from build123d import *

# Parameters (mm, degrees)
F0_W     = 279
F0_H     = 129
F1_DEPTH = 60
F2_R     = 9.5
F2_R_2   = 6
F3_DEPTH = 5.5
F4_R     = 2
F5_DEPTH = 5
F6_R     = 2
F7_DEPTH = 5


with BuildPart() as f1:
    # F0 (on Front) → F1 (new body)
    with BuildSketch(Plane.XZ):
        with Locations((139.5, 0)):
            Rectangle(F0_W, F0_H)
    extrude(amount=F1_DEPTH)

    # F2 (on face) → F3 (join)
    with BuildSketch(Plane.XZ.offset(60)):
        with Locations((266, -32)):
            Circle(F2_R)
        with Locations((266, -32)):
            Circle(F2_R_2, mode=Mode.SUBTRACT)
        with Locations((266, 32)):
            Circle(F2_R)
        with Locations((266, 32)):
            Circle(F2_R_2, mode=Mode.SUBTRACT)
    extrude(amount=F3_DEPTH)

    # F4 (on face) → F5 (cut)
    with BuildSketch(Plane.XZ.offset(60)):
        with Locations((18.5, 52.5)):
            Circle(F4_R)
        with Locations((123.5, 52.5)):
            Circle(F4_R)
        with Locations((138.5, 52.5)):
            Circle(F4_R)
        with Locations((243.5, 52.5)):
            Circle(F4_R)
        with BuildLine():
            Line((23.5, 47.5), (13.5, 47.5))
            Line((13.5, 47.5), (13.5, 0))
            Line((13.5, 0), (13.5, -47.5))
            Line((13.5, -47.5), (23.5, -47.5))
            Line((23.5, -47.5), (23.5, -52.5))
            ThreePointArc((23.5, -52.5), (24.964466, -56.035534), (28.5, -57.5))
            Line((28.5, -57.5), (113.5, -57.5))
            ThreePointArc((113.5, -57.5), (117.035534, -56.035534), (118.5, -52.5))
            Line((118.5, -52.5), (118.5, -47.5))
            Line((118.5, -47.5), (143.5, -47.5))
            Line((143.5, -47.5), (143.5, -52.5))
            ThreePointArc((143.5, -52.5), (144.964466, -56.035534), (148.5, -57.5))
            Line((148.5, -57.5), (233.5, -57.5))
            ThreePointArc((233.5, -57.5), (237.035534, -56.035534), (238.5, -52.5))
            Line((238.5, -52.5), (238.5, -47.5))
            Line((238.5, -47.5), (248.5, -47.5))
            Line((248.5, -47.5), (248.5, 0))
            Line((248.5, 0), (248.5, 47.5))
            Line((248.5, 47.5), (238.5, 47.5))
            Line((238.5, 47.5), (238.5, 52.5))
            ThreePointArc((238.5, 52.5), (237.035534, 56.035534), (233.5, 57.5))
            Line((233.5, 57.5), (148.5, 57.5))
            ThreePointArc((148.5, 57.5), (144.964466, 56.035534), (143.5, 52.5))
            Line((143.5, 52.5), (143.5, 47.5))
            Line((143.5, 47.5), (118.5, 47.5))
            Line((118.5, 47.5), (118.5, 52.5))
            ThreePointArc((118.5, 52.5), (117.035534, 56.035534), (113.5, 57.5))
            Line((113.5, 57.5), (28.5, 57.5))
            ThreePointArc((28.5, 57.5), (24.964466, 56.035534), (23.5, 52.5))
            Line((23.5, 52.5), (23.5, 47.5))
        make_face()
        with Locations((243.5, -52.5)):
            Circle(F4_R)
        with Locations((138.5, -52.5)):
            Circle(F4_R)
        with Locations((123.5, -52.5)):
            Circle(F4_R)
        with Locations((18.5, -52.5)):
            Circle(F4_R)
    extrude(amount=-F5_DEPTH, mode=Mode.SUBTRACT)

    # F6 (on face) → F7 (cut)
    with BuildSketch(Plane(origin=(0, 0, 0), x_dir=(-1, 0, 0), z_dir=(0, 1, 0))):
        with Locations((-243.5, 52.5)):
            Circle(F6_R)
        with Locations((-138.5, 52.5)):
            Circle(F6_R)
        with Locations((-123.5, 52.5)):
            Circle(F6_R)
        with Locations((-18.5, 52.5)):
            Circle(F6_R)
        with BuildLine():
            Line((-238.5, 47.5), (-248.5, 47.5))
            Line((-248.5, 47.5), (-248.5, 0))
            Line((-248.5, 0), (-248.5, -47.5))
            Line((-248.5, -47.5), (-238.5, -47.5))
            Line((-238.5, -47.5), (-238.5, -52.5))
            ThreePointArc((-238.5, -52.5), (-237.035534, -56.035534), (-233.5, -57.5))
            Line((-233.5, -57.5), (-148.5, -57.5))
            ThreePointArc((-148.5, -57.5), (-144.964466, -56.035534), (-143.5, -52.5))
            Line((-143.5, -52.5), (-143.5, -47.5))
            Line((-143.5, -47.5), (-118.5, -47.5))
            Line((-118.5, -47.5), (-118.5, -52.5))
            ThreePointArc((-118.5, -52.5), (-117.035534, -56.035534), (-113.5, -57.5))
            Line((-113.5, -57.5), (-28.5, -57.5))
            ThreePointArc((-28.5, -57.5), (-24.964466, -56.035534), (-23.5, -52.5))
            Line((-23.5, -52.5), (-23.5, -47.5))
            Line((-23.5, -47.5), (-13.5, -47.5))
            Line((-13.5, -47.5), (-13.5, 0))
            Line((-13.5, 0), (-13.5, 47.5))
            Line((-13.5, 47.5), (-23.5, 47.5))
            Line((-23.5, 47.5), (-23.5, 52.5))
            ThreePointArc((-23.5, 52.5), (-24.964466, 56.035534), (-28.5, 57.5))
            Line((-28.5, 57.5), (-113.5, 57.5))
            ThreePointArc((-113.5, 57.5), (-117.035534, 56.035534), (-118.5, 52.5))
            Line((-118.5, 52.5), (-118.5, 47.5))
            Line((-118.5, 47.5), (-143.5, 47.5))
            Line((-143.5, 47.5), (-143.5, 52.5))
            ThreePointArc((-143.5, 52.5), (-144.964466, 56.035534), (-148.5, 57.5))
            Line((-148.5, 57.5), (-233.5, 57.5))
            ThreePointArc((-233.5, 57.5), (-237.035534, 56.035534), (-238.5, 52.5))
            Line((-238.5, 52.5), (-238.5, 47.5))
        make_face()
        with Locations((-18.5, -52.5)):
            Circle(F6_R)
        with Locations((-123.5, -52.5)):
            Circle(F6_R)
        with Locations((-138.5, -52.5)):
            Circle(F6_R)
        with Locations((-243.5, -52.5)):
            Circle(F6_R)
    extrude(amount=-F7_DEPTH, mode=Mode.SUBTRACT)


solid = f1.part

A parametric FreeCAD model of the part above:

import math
import FreeCAD as App
import Part
import Sketcher
Q = App.Units.Quantity


def add_polygon(sketch, points):
    """Adds a closed chain of lines whose ends are joined by coincident constraints."""
    first, n = sketch.GeometryCount, len(points)
    for a, b in zip(points, points[1:] + points[:1]):
        sketch.addGeometry(Part.LineSegment(App.Vector(*a, 0), App.Vector(*b, 0)), False)
    for i in range(n):
        sketch.addConstraint(Sketcher.Constraint("Coincident", first + i, 2, first + (i + 1) % n, 1))

doc = App.newDocument("Part")
params = doc.addObject("Spreadsheet::Sheet", "Params")
for row, (alias, value) in enumerate([
    ("sketch1_width", "279 mm"),
    ("sketch1_height", "129 mm"),
    ("pad1_length", "60 mm"),
    ("sketch2_diameter", "19 mm"),
    ("sketch2_diameter2", "12 mm"),
    ("pad2_length", "5.5 mm"),
    ("sketch3_diameter", "4 mm"),
    ("sketch3_radius", "5 mm"),
    ("sketch3_width", "10 mm"),
    ("sketch3_width2", "85 mm"),
    ("sketch3_width3", "25 mm"),
    ("pocket1_length", "5 mm"),
    ("sketch4_diameter", "4 mm"),
    ("sketch4_radius", "5 mm"),
    ("sketch4_width", "10 mm"),
    ("sketch4_width2", "85 mm"),
    ("sketch4_width3", "25 mm"),
    ("pocket2_length", "5 mm"),
], start=1):
    params.set(f"A{row}", alias)
    params.set(f"B{row}", "=" + value)
    params.setAlias(f"B{row}", alias)

body = doc.addObject("PartDesign::Body", "Body")

sketch1 = body.newObject("Sketcher::SketchObject", "Sketch")
sketch1.AttachmentSupport = (doc.getObject("XZ_Plane"), [""])
sketch1.MapMode = "FlatFace"
add_polygon(sketch1, [(0, 64), (0, -64), (279, -64), (279, 64)])
sketch1.addConstraint([
    Sketcher.Constraint("Vertical", 0),
    Sketcher.Constraint("Horizontal", 1),
    Sketcher.Constraint("Vertical", 2),
    Sketcher.Constraint("Horizontal", 3),
    Sketcher.Constraint("Symmetric", 0, 2, 3, 2, -1, 1),
    Sketcher.Constraint("DistanceX", 1, 1, 1, 2, Q("279 mm")),
    Sketcher.Constraint("DistanceY", 0, 2, 0, 1, Q("129 mm")),
])
sketch1.setExpression("Constraints[9]", "Params.sketch1_width")
sketch1.setExpression("Constraints[10]", "Params.sketch1_height")
pad1 = body.newObject("PartDesign::Pad", "Pad")
pad1.Profile = sketch1
pad1.setExpression("Length", "Params.pad1_length")

sketch2 = body.newObject("Sketcher::SketchObject", "Sketch001")
sketch2.AttachmentSupport = (doc.getObject("XZ_Plane"), [""])
sketch2.MapMode = "FlatFace"
sketch2.AttachmentOffset = App.Placement(App.Vector(0, 0, 60), App.Rotation())
sketch2.addGeometry([
    Part.Circle(App.Vector(266, -32, 0), App.Vector(0, 0, 1), 10),
    Part.Circle(App.Vector(266, -32, 0), App.Vector(0, 0, 1), 6),
    Part.Circle(App.Vector(266, 32, 0), App.Vector(0, 0, 1), 10),
    Part.Circle(App.Vector(266, 32, 0), App.Vector(0, 0, 1), 6),
], False)
sketch2.addConstraint([
    Sketcher.Constraint("Coincident", 1, 3, 0, 3),
    Sketcher.Constraint("Coincident", 3, 3, 2, 3),
    Sketcher.Constraint("Equal", 0, 2),
    Sketcher.Constraint("Equal", 1, 3),
    Sketcher.Constraint("Symmetric", 0, 3, 2, 3, -1),
    Sketcher.Constraint("Diameter", 0, Q("19 mm")),
    Sketcher.Constraint("Diameter", 1, Q("12 mm")),
    Sketcher.Constraint("DistanceX", -1, 1, 0, 3, Q("266 mm")),
    Sketcher.Constraint("DistanceY", 0, 3, -1, 1, Q("32 mm")),
])
sketch2.setExpression("Constraints[5]", "Params.sketch2_diameter")
sketch2.setExpression("Constraints[6]", "Params.sketch2_diameter2")
pad2 = body.newObject("PartDesign::Pad", "Pad001")
pad2.Profile = sketch2
pad2.setExpression("Length", "Params.pad2_length")

sketch3 = body.newObject("Sketcher::SketchObject", "Sketch002")
sketch3.AttachmentSupport = (doc.getObject("XZ_Plane"), [""])
sketch3.MapMode = "FlatFace"
sketch3.AttachmentOffset = App.Placement(App.Vector(0, 0, 60), App.Rotation())
sketch3.addGeometry([
    Part.Circle(App.Vector(18.5, 52.5, 0), App.Vector(0, 0, 1), 2),
    Part.Circle(App.Vector(123.5, 52.5, 0), App.Vector(0, 0, 1), 2),
    Part.Circle(App.Vector(138.5, 52.5, 0), App.Vector(0, 0, 1), 2),
    Part.Circle(App.Vector(243.5, 52.5, 0), App.Vector(0, 0, 1), 2),
    Part.LineSegment(App.Vector(23.5, 47.5, 0), App.Vector(13.5, 47.5, 0)),
    Part.LineSegment(App.Vector(13.5, 47.5, 0), App.Vector(13.5, -47.5, 0)),
    Part.LineSegment(App.Vector(13.5, -47.5, 0), App.Vector(23.5, -47.5, 0)),
    Part.LineSegment(App.Vector(23.5, -47.5, 0), App.Vector(23.5, -52.5, 0)),
    Part.ArcOfCircle(Part.Circle(App.Vector(28.5, -52.5, 0), App.Vector(0, 0, 1), 5), math.radians(180), math.radians(270)),
    Part.LineSegment(App.Vector(28.5, -57.5, 0), App.Vector(113.5, -57.5, 0)),
    Part.ArcOfCircle(Part.Circle(App.Vector(113.5, -52.5, 0), App.Vector(0, 0, 1), 5), math.radians(-90), math.radians(0)),
    Part.LineSegment(App.Vector(118.5, -52.5, 0), App.Vector(118.5, -47.5, 0)),
    Part.LineSegment(App.Vector(118.5, -47.5, 0), App.Vector(143.5, -47.5, 0)),
    Part.LineSegment(App.Vector(143.5, -47.5, 0), App.Vector(143.5, -52.5, 0)),
    Part.ArcOfCircle(Part.Circle(App.Vector(148.5, -52.5, 0), App.Vector(0, 0, 1), 5), math.radians(180), math.radians(270)),
    Part.LineSegment(App.Vector(148.5, -57.5, 0), App.Vector(233.5, -57.5, 0)),
    Part.ArcOfCircle(Part.Circle(App.Vector(233.5, -52.5, 0), App.Vector(0, 0, 1), 5), math.radians(-90), math.radians(0)),
    Part.LineSegment(App.Vector(238.5, -52.5, 0), App.Vector(238.5, -47.5, 0)),
    Part.LineSegment(App.Vector(238.5, -47.5, 0), App.Vector(248.5, -47.5, 0)),
    Part.LineSegment(App.Vector(248.5, -47.5, 0), App.Vector(248.5, 47.5, 0)),
    Part.LineSegment(App.Vector(248.5, 47.5, 0), App.Vector(238.5, 47.5, 0)),
    Part.LineSegment(App.Vector(238.5, 47.5, 0), App.Vector(238.5, 52.5, 0)),
    Part.ArcOfCircle(Part.Circle(App.Vector(233.5, 52.5, 0), App.Vector(0, 0, 1), 5), math.radians(0), math.radians(90)),
    Part.LineSegment(App.Vector(233.5, 57.5, 0), App.Vector(148.5, 57.5, 0)),
    Part.ArcOfCircle(Part.Circle(App.Vector(148.5, 52.5, 0), App.Vector(0, 0, 1), 5), math.radians(90), math.radians(180)),
    Part.LineSegment(App.Vector(143.5, 52.5, 0), App.Vector(143.5, 47.5, 0)),
    Part.LineSegment(App.Vector(143.5, 47.5, 0), App.Vector(118.5, 47.5, 0)),
    Part.LineSegment(App.Vector(118.5, 47.5, 0), App.Vector(118.5, 52.5, 0)),
    Part.ArcOfCircle(Part.Circle(App.Vector(113.5, 52.5, 0), App.Vector(0, 0, 1), 5), math.radians(0), math.radians(90)),
    Part.LineSegment(App.Vector(113.5, 57.5, 0), App.Vector(28.5, 57.5, 0)),
    Part.ArcOfCircle(Part.Circle(App.Vector(28.5, 52.5, 0), App.Vector(0, 0, 1), 5), math.radians(90), math.radians(180)),
    Part.LineSegment(App.Vector(23.5, 52.5, 0), App.Vector(23.5, 47.5, 0)),
    Part.Circle(App.Vector(243.5, -52.5, 0), App.Vector(0, 0, 1), 2),
    Part.Circle(App.Vector(138.5, -52.5, 0), App.Vector(0, 0, 1), 2),
    Part.Circle(App.Vector(123.5, -52.5, 0), App.Vector(0, 0, 1), 2),
    Part.Circle(App.Vector(18.5, -52.5, 0), App.Vector(0, 0, 1), 2),
], False)
sketch3.addConstraint([
    Sketcher.Constraint("Coincident", 4, 2, 5, 1),
    Sketcher.Constraint("Coincident", 5, 2, 6, 1),
    Sketcher.Constraint("Coincident", 6, 2, 7, 1),
    Sketcher.Constraint("Tangent", 7, 2, 8, 1),
    Sketcher.Constraint("Tangent", 8, 2, 9, 1),
    Sketcher.Constraint("Tangent", 9, 2, 10, 1),
    Sketcher.Constraint("Tangent", 10, 2, 11, 1),
    Sketcher.Constraint("Coincident", 11, 2, 12, 1),
    Sketcher.Constraint("Coincident", 12, 2, 13, 1),
    Sketcher.Constraint("Tangent", 13, 2, 14, 1),
    Sketcher.Constraint("Tangent", 14, 2, 15, 1),
    Sketcher.Constraint("Tangent", 15, 2, 16, 1),
    Sketcher.Constraint("Tangent", 16, 2, 17, 1),
    Sketcher.Constraint("Coincident", 17, 2, 18, 1),
    Sketcher.Constraint("Coincident", 18, 2, 19, 1),
    Sketcher.Constraint("Coincident", 19, 2, 20, 1),
    Sketcher.Constraint("Coincident", 20, 2, 21, 1),
    Sketcher.Constraint("Tangent", 21, 2, 22, 1),
    Sketcher.Constraint("Tangent", 22, 2, 23, 1),
    Sketcher.Constraint("Tangent", 23, 2, 24, 1),
    Sketcher.Constraint("Tangent", 24, 2, 25, 1),
    Sketcher.Constraint("Coincident", 25, 2, 26, 1),
    Sketcher.Constraint("Coincident", 26, 2, 27, 1),
    Sketcher.Constraint("Tangent", 27, 2, 28, 1),
    Sketcher.Constraint("Tangent", 28, 2, 29, 1),
    Sketcher.Constraint("Tangent", 29, 2, 30, 1),
    Sketcher.Constraint("Tangent", 30, 2, 31, 1),
    Sketcher.Constraint("Coincident", 31, 2, 4, 1),
    Sketcher.Constraint("Horizontal", 4),
    Sketcher.Constraint("Vertical", 5),
    Sketcher.Constraint("Horizontal", 6),
    Sketcher.Constraint("Vertical", 7),
    Sketcher.Constraint("Horizontal", 9),
    Sketcher.Constraint("Vertical", 11),
    Sketcher.Constraint("Horizontal", 12),
    Sketcher.Constraint("Vertical", 13),
    Sketcher.Constraint("Horizontal", 15),
    Sketcher.Constraint("Vertical", 17),
    Sketcher.Constraint("Horizontal", 18),
    Sketcher.Constraint("Vertical", 19),
    Sketcher.Constraint("Horizontal", 20),
    Sketcher.Constraint("Vertical", 21),
    Sketcher.Constraint("Horizontal", 23),
    Sketcher.Constraint("Vertical", 25),
    Sketcher.Constraint("Horizontal", 26),
    Sketcher.Constraint("Vertical", 27),
    Sketcher.Constraint("Horizontal", 29),
    Sketcher.Constraint("Vertical", 31),
    Sketcher.Constraint("Equal", 0, 1),
    Sketcher.Constraint("Equal", 1, 2),
    Sketcher.Constraint("Equal", 2, 3),
    Sketcher.Constraint("Equal", 8, 10),
    Sketcher.Constraint("Equal", 10, 14),
    Sketcher.Constraint("Equal", 14, 16),
    Sketcher.Constraint("Equal", 16, 22),
    Sketcher.Constraint("Equal", 22, 24),
    Sketcher.Constraint("Equal", 24, 28),
    Sketcher.Constraint("Equal", 28, 30),
    Sketcher.Constraint("Equal", 3, 32),
    Sketcher.Constraint("Equal", 32, 33),
    Sketcher.Constraint("Equal", 33, 34),
    Sketcher.Constraint("Equal", 34, 35),
    Sketcher.Constraint("Symmetric", 16, 3, 22, 3, -1),
    Sketcher.Constraint("Symmetric", 10, 3, 28, 3, -1),
    Sketcher.Constraint("Symmetric", 3, 3, 32, 3, -1),
    Sketcher.Constraint("Symmetric", 2, 3, 33, 3, -1),
    Sketcher.Constraint("Symmetric", 1, 3, 34, 3, -1),
    Sketcher.Constraint("Symmetric", 0, 3, 35, 3, -1),
    Sketcher.Constraint("Symmetric", 12, 2, 25, 2, -1),
    Sketcher.Constraint("Symmetric", 6, 2, 31, 2, -1),
    Sketcher.Constraint("Horizontal", 0, 3, 1, 3),
    Sketcher.Constraint("Horizontal", 1, 3, 2, 3),
    Sketcher.Constraint("Horizontal", 2, 3, 3, 3),
    Sketcher.Constraint("Horizontal", 10, 3, 14, 3),
    Sketcher.Constraint("Horizontal", 3, 3, 22, 3),
    Sketcher.Constraint("Horizontal", 6, 2, 11, 2),
    Sketcher.Constraint("Horizontal", 12, 2, 17, 2),
    Sketcher.Constraint("Horizontal", 4, 2, 19, 2),
    Sketcher.Constraint("Equal", 9, 15),
    Sketcher.Constraint("Equal", 6, 18),
    Sketcher.Constraint("Diameter", 0, Q("4 mm")),
    Sketcher.Constraint("Radius", 8, Q("5 mm")),
    Sketcher.Constraint("DistanceX", 4, 2, 4, 1, Q("10 mm")),
    Sketcher.Constraint("DistanceX", 9, 1, 9, 2, Q("85 mm")),
    Sketcher.Constraint("DistanceX", 12, 1, 12, 2, Q("25 mm")),
    Sketcher.Constraint("DistanceY", 5, 2, 5, 1, Q("95 mm")),
    Sketcher.Constraint("DistanceY", 7, 2, 7, 1, Q("5 mm")),
    Sketcher.Constraint("DistanceX", 0, 3, 1, 3, Q("105 mm")),
    Sketcher.Constraint("DistanceX", 1, 3, 2, 3, Q("15 mm")),
    Sketcher.Constraint("DistanceX", 2, 3, 3, 3, Q("105 mm")),
    Sketcher.Constraint("DistanceX", 0, 3, 8, 3, Q("10 mm")),
    Sketcher.Constraint("DistanceX", -1, 1, 0, 3, Q("18.5 mm")),
])
sketch3.setExpression("Constraints[80]", "Params.sketch3_diameter")
sketch3.setExpression("Constraints[81]", "Params.sketch3_radius")
sketch3.setExpression("Constraints[82]", "Params.sketch3_width")
sketch3.setExpression("Constraints[83]", "Params.sketch3_width2")
sketch3.setExpression("Constraints[84]", "Params.sketch3_width3")
pocket1 = body.newObject("PartDesign::Pocket", "Pocket")
pocket1.Profile = sketch3
pocket1.setExpression("Length", "Params.pocket1_length")

sketch4 = body.newObject("Sketcher::SketchObject", "Sketch003")
sketch4.AttachmentSupport = (doc.getObject("XZ_Plane"), [""])
sketch4.MapMode = "FlatFace"
sketch4.addGeometry([
    Part.Circle(App.Vector(243.5, 52.5, 0), App.Vector(0, 0, 1), 2),
    Part.Circle(App.Vector(138.5, 52.5, 0), App.Vector(0, 0, 1), 2),
    Part.Circle(App.Vector(123.5, 52.5, 0), App.Vector(0, 0, 1), 2),
    Part.Circle(App.Vector(18.5, 52.5, 0), App.Vector(0, 0, 1), 2),
    Part.LineSegment(App.Vector(238.5, 47.5, 0), App.Vector(248.5, 47.5, 0)),
    Part.LineSegment(App.Vector(248.5, 47.5, 0), App.Vector(248.5, -47.5, 0)),
    Part.LineSegment(App.Vector(248.5, -47.5, 0), App.Vector(238.5, -47.5, 0)),
    Part.LineSegment(App.Vector(238.5, -47.5, 0), App.Vector(238.5, -52.5, 0)),
    Part.ArcOfCircle(Part.Circle(App.Vector(233.5, -52.5, 0), App.Vector(0, 0, 1), 5), math.radians(-90), math.radians(0)),
    Part.LineSegment(App.Vector(233.5, -57.5, 0), App.Vector(148.5, -57.5, 0)),
    Part.ArcOfCircle(Part.Circle(App.Vector(148.5, -52.5, 0), App.Vector(0, 0, 1), 5), math.radians(180), math.radians(270)),
    Part.LineSegment(App.Vector(143.5, -52.5, 0), App.Vector(143.5, -47.5, 0)),
    Part.LineSegment(App.Vector(143.5, -47.5, 0), App.Vector(118.5, -47.5, 0)),
    Part.LineSegment(App.Vector(118.5, -47.5, 0), App.Vector(118.5, -52.5, 0)),
    Part.ArcOfCircle(Part.Circle(App.Vector(113.5, -52.5, 0), App.Vector(0, 0, 1), 5), math.radians(-90), math.radians(0)),
    Part.LineSegment(App.Vector(113.5, -57.5, 0), App.Vector(28.5, -57.5, 0)),
    Part.ArcOfCircle(Part.Circle(App.Vector(28.5, -52.5, 0), App.Vector(0, 0, 1), 5), math.radians(180), math.radians(270)),
    Part.LineSegment(App.Vector(23.5, -52.5, 0), App.Vector(23.5, -47.5, 0)),
    Part.LineSegment(App.Vector(23.5, -47.5, 0), App.Vector(13.5, -47.5, 0)),
    Part.LineSegment(App.Vector(13.5, -47.5, 0), App.Vector(13.5, 47.5, 0)),
    Part.LineSegment(App.Vector(13.5, 47.5, 0), App.Vector(23.5, 47.5, 0)),
    Part.LineSegment(App.Vector(23.5, 47.5, 0), App.Vector(23.5, 52.5, 0)),
    Part.ArcOfCircle(Part.Circle(App.Vector(28.5, 52.5, 0), App.Vector(0, 0, 1), 5), math.radians(90), math.radians(180)),
    Part.LineSegment(App.Vector(28.5, 57.5, 0), App.Vector(113.5, 57.5, 0)),
    Part.ArcOfCircle(Part.Circle(App.Vector(113.5, 52.5, 0), App.Vector(0, 0, 1), 5), math.radians(0), math.radians(90)),
    Part.LineSegment(App.Vector(118.5, 52.5, 0), App.Vector(118.5, 47.5, 0)),
    Part.LineSegment(App.Vector(118.5, 47.5, 0), App.Vector(143.5, 47.5, 0)),
    Part.LineSegment(App.Vector(143.5, 47.5, 0), App.Vector(143.5, 52.5, 0)),
    Part.ArcOfCircle(Part.Circle(App.Vector(148.5, 52.5, 0), App.Vector(0, 0, 1), 5), math.radians(90), math.radians(180)),
    Part.LineSegment(App.Vector(148.5, 57.5, 0), App.Vector(233.5, 57.5, 0)),
    Part.ArcOfCircle(Part.Circle(App.Vector(233.5, 52.5, 0), App.Vector(0, 0, 1), 5), math.radians(0), math.radians(90)),
    Part.LineSegment(App.Vector(238.5, 52.5, 0), App.Vector(238.5, 47.5, 0)),
    Part.Circle(App.Vector(18.5, -52.5, 0), App.Vector(0, 0, 1), 2),
    Part.Circle(App.Vector(123.5, -52.5, 0), App.Vector(0, 0, 1), 2),
    Part.Circle(App.Vector(138.5, -52.5, 0), App.Vector(0, 0, 1), 2),
    Part.Circle(App.Vector(243.5, -52.5, 0), App.Vector(0, 0, 1), 2),
], False)
sketch4.addConstraint([
    Sketcher.Constraint("Coincident", 4, 2, 5, 1),
    Sketcher.Constraint("Coincident", 5, 2, 6, 1),
    Sketcher.Constraint("Coincident", 6, 2, 7, 1),
    Sketcher.Constraint("Tangent", 7, 2, 8, 2),
    Sketcher.Constraint("Tangent", 8, 1, 9, 1),
    Sketcher.Constraint("Tangent", 9, 2, 10, 2),
    Sketcher.Constraint("Tangent", 10, 1, 11, 1),
    Sketcher.Constraint("Coincident", 11, 2, 12, 1),
    Sketcher.Constraint("Coincident", 12, 2, 13, 1),
    Sketcher.Constraint("Tangent", 13, 2, 14, 2),
    Sketcher.Constraint("Tangent", 14, 1, 15, 1),
    Sketcher.Constraint("Tangent", 15, 2, 16, 2),
    Sketcher.Constraint("Tangent", 16, 1, 17, 1),
    Sketcher.Constraint("Coincident", 17, 2, 18, 1),
    Sketcher.Constraint("Coincident", 18, 2, 19, 1),
    Sketcher.Constraint("Coincident", 19, 2, 20, 1),
    Sketcher.Constraint("Coincident", 20, 2, 21, 1),
    Sketcher.Constraint("Tangent", 21, 2, 22, 2),
    Sketcher.Constraint("Tangent", 22, 1, 23, 1),
    Sketcher.Constraint("Tangent", 23, 2, 24, 2),
    Sketcher.Constraint("Tangent", 24, 1, 25, 1),
    Sketcher.Constraint("Coincident", 25, 2, 26, 1),
    Sketcher.Constraint("Coincident", 26, 2, 27, 1),
    Sketcher.Constraint("Tangent", 27, 2, 28, 2),
    Sketcher.Constraint("Tangent", 28, 1, 29, 1),
    Sketcher.Constraint("Tangent", 29, 2, 30, 2),
    Sketcher.Constraint("Tangent", 30, 1, 31, 1),
    Sketcher.Constraint("Coincident", 31, 2, 4, 1),
    Sketcher.Constraint("Horizontal", 4),
    Sketcher.Constraint("Vertical", 5),
    Sketcher.Constraint("Horizontal", 6),
    Sketcher.Constraint("Vertical", 7),
    Sketcher.Constraint("Horizontal", 9),
    Sketcher.Constraint("Vertical", 11),
    Sketcher.Constraint("Horizontal", 12),
    Sketcher.Constraint("Vertical", 13),
    Sketcher.Constraint("Horizontal", 15),
    Sketcher.Constraint("Vertical", 17),
    Sketcher.Constraint("Horizontal", 18),
    Sketcher.Constraint("Vertical", 19),
    Sketcher.Constraint("Horizontal", 20),
    Sketcher.Constraint("Vertical", 21),
    Sketcher.Constraint("Horizontal", 23),
    Sketcher.Constraint("Vertical", 25),
    Sketcher.Constraint("Horizontal", 26),
    Sketcher.Constraint("Vertical", 27),
    Sketcher.Constraint("Horizontal", 29),
    Sketcher.Constraint("Vertical", 31),
    Sketcher.Constraint("Equal", 0, 1),
    Sketcher.Constraint("Equal", 1, 2),
    Sketcher.Constraint("Equal", 2, 3),
    Sketcher.Constraint("Equal", 8, 10),
    Sketcher.Constraint("Equal", 10, 14),
    Sketcher.Constraint("Equal", 14, 16),
    Sketcher.Constraint("Equal", 16, 22),
    Sketcher.Constraint("Equal", 22, 24),
    Sketcher.Constraint("Equal", 24, 28),
    Sketcher.Constraint("Equal", 28, 30),
    Sketcher.Constraint("Equal", 3, 32),
    Sketcher.Constraint("Equal", 32, 33),
    Sketcher.Constraint("Equal", 33, 34),
    Sketcher.Constraint("Equal", 34, 35),
    Sketcher.Constraint("Symmetric", 16, 3, 22, 3, -1),
    Sketcher.Constraint("Symmetric", 10, 3, 28, 3, -1),
    Sketcher.Constraint("Symmetric", 3, 3, 32, 3, -1),
    Sketcher.Constraint("Symmetric", 2, 3, 33, 3, -1),
    Sketcher.Constraint("Symmetric", 1, 3, 34, 3, -1),
    Sketcher.Constraint("Symmetric", 0, 3, 35, 3, -1),
    Sketcher.Constraint("Symmetric", 12, 2, 25, 2, -1),
    Sketcher.Constraint("Symmetric", 6, 2, 31, 2, -1),
    Sketcher.Constraint("Horizontal", 0, 3, 1, 3),
    Sketcher.Constraint("Horizontal", 1, 3, 2, 3),
    Sketcher.Constraint("Horizontal", 2, 3, 3, 3),
    Sketcher.Constraint("Horizontal", 10, 3, 14, 3),
    Sketcher.Constraint("Horizontal", 3, 3, 22, 3),
    Sketcher.Constraint("Horizontal", 6, 2, 11, 2),
    Sketcher.Constraint("Horizontal", 12, 2, 17, 2),
    Sketcher.Constraint("Horizontal", 4, 2, 19, 2),
    Sketcher.Constraint("Equal", 9, 15),
    Sketcher.Constraint("Equal", 6, 18),
    Sketcher.Constraint("Diameter", 0, Q("4 mm")),
    Sketcher.Constraint("Radius", 8, Q("5 mm")),
    Sketcher.Constraint("DistanceX", 4, 1, 4, 2, Q("10 mm")),
    Sketcher.Constraint("DistanceX", 9, 2, 9, 1, Q("85 mm")),
    Sketcher.Constraint("DistanceX", 12, 2, 12, 1, Q("25 mm")),
    Sketcher.Constraint("DistanceY", 5, 2, 5, 1, Q("95 mm")),
    Sketcher.Constraint("DistanceY", 7, 2, 7, 1, Q("5 mm")),
    Sketcher.Constraint("DistanceX", 1, 3, 0, 3, Q("105 mm")),
    Sketcher.Constraint("DistanceX", 2, 3, 1, 3, Q("15 mm")),
    Sketcher.Constraint("DistanceX", 3, 3, 2, 3, Q("105 mm")),
    Sketcher.Constraint("DistanceX", 8, 3, 0, 3, Q("10 mm")),
    Sketcher.Constraint("DistanceX", -1, 1, 0, 3, Q("243.5 mm")),
])
sketch4.setExpression("Constraints[80]", "Params.sketch4_diameter")
sketch4.setExpression("Constraints[81]", "Params.sketch4_radius")
sketch4.setExpression("Constraints[82]", "Params.sketch4_width")
sketch4.setExpression("Constraints[83]", "Params.sketch4_width2")
sketch4.setExpression("Constraints[84]", "Params.sketch4_width3")
pocket2 = body.newObject("PartDesign::Pocket", "Pocket001")
pocket2.Profile = sketch4
pocket2.setExpression("Length", "Params.pocket2_length")
pocket2.Reversed = True

doc.recompute()
